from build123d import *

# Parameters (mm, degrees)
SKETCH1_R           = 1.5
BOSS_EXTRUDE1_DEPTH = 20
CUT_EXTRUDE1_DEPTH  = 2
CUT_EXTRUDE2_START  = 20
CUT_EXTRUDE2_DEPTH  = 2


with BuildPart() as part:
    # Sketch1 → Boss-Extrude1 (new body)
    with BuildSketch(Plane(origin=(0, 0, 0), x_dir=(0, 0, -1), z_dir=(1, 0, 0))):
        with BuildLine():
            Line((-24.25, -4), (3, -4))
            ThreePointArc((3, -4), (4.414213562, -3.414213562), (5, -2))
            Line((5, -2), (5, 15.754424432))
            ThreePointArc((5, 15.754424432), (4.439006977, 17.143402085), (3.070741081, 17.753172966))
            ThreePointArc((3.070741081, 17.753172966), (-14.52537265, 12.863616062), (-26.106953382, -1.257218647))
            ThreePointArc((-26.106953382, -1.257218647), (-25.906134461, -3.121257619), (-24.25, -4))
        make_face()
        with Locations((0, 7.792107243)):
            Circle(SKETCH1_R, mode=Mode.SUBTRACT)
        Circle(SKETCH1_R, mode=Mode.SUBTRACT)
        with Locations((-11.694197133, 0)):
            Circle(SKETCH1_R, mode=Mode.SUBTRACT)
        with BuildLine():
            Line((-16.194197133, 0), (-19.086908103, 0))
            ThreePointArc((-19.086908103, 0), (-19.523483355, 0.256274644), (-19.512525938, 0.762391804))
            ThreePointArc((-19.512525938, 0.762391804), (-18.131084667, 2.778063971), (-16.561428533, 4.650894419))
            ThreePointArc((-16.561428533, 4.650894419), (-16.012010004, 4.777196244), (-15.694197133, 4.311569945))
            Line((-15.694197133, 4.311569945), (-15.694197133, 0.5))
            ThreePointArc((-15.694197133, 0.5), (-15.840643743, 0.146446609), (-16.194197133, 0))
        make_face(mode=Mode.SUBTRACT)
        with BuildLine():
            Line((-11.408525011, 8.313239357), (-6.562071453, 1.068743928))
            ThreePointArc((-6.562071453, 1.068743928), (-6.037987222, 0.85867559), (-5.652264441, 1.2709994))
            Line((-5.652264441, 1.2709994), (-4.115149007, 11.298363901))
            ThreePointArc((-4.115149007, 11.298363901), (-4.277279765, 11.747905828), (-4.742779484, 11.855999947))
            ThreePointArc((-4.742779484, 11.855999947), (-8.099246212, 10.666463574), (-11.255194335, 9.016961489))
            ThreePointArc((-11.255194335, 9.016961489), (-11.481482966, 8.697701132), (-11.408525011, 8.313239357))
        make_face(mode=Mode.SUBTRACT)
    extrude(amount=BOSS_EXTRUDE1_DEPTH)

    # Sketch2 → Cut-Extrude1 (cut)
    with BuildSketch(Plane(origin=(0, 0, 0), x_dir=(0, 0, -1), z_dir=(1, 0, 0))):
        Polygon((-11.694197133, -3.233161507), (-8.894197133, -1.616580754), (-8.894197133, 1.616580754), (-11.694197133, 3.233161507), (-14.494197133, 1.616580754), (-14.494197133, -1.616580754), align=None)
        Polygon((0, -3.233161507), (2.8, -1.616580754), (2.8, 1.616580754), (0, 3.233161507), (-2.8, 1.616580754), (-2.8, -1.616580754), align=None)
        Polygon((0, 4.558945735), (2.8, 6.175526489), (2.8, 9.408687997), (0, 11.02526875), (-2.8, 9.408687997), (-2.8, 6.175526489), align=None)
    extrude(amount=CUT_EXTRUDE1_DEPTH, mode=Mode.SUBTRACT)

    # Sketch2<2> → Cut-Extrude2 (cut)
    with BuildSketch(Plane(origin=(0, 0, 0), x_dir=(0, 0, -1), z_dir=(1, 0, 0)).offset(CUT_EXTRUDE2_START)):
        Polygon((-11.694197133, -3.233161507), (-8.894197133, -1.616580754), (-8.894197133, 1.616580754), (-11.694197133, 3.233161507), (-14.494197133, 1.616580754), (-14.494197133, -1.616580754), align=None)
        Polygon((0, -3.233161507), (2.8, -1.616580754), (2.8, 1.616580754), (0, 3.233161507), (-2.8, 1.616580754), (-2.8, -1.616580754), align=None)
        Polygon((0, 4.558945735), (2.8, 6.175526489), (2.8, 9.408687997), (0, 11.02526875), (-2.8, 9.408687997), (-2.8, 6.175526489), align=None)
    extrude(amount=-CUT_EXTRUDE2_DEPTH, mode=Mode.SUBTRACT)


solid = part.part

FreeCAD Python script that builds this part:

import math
import FreeCAD as App
import Part
import Sketcher
from FreeCAD import Vector
Q = App.Units.Quantity

doc = App.newDocument("Part")
body = doc.addObject("PartDesign::Body", "Body")

# Sketch on YZ plane
sketch1 = body.newObject("Sketcher::SketchObject", "Sketch")
sketch1.AttachmentSupport = (doc.getObject("YZ_Plane"), [""])
sketch1.MapMode = "FlatFace"
sketch1.addGeometry([
    Part.LineSegment(Vector(-4, 24.2, 0), Vector(-4, -3, 0)),  # 0
    Part.ArcOfCircle(Part.Circle(Vector(-2, -3, 0), Vector(0, 0, 1), 2), math.radians(-180), math.radians(-90)),  # 1
    Part.LineSegment(Vector(-2, -5, 0), Vector(15.8, -5, 0)),  # 2
    Part.ArcOfCircle(Part.Circle(Vector(15.8, -3, 0), Vector(0, 0, 1), 2), math.radians(-90), math.radians(-2)),  # 3
    Part.ArcOfCircle(Part.Circle(Vector(-12.5, -2, 0), Vector(0, 0, 1), 30.3), math.radians(-2), math.radians(68)),  # 4
    Part.ArcOfCircle(Part.Circle(Vector(-2, 24.2, 0), Vector(0, 0, 1), 2), math.radians(68), math.radians(180)),  # 5
    Part.Circle(Vector(0, 11.7, 0), Vector(0, 0, 1), 1.5),  # 6
    Part.ArcOfCircle(Part.Circle(Vector(0.5, 16.2, 0), Vector(0, 0, 1), 0.5), math.radians(180), math.radians(270)),  # 7
    Part.LineSegment(Vector(0, 16.2, 0), Vector(0, 19.1, 0)),  # 8
    Part.ArcOfCircle(Part.Circle(Vector(0.5, 19.1, 0), Vector(0, 0, 1), 0.5), math.radians(58), math.radians(180)),  # 9
    Part.ArcOfCircle(Part.Circle(Vector(-12.5, -2, 0), Vector(0, 0, 1), 25.3), math.radians(47.26), math.radians(58.35)),  # 10
    Part.ArcOfCircle(Part.Circle(Vector(4.3, 16.2, 0), Vector(0, 0, 1), 0.5), math.radians(-90), math.radians(47)),  # 11
    Part.LineSegment(Vector(4.3, 15.7, 0), Vector(0.5, 15.7, 0)),  # 12
    Part.Circle(Vector(0, 0, 0), Vector(0, 0, 1), 1.5),  # 13
    Part.LineSegment(Vector(1.1, 6.6, 0), Vector(8.3, 11.4, 0)),  # 14
    Part.ArcOfCircle(Part.Circle(Vector(8.6, 11, 0), Vector(0, 0, 1), 0.5), math.radians(32), math.radians(124)),  # 15
    Part.ArcOfCircle(Part.Circle(Vector(-12.5, -2, 0), Vector(0, 0, 1), 25.3), math.radians(15.47), math.radians(31.63)),  # 16
    Part.ArcOfCircle(Part.Circle(Vector(11.4, 4.6, 0), Vector(0, 0, 1), 0.5), math.radians(-99), math.radians(15)),  # 17
    Part.LineSegment(Vector(11.3, 4.1, 0), Vector(1.3, 5.7, 0)),  # 18
    Part.ArcOfCircle(Part.Circle(Vector(1.3, 6.1, 0), Vector(0, 0, 1), 0.5), math.radians(124), math.radians(261)),  # 19
    Part.Circle(Vector(7.8, 0, 0), Vector(0, 0, 1), 1.5),  # 20
], False)
sketch1.addConstraint([
    Sketcher.Constraint("Tangent", 0, 2, 1, 1),
    Sketcher.Constraint("Tangent", 1, 2, 2, 1),
    Sketcher.Constraint("Tangent", 2, 2, 3, 1),
    Sketcher.Constraint("Tangent", 3, 2, 4, 1),
    Sketcher.Constraint("Tangent", 4, 2, 5, 1),
    Sketcher.Constraint("Tangent", 5, 2, 0, 1),
    Sketcher.Constraint("Tangent", 7, 1, 8, 1),
    Sketcher.Constraint("Tangent", 8, 2, 9, 2),
    Sketcher.Constraint("Tangent", 9, 1, 10, 2),
    Sketcher.Constraint("Tangent", 10, 1, 11, 2),
    Sketcher.Constraint("Tangent", 11, 1, 12, 1),
    Sketcher.Constraint("Tangent", 12, 2, 7, 2),
    Sketcher.Constraint("Tangent", 14, 2, 15, 2),
    Sketcher.Constraint("Tangent", 15, 1, 16, 2),
    Sketcher.Constraint("Tangent", 16, 1, 17, 2),
    Sketcher.Constraint("Tangent", 17, 1, 18, 1),
    Sketcher.Constraint("Tangent", 18, 2, 19, 2),
    Sketcher.Constraint("Tangent", 19, 1, 14, 1),
    Sketcher.Constraint("Vertical", 0),
    Sketcher.Constraint("Horizontal", 2),
    Sketcher.Constraint("Vertical", 8),
    Sketcher.Constraint("Horizontal", 12),
    Sketcher.Constraint("Coincident", 13, 3, -1, 1),
    Sketcher.Constraint("Coincident", 10, 3, 4, 3),
    Sketcher.Constraint("Coincident", 16, 3, 4, 3),
    Sketcher.Constraint("Equal", 1, 3),
    Sketcher.Constraint("Equal", 3, 5),
    Sketcher.Constraint("Equal", 7, 9),
    Sketcher.Constraint("Equal", 9, 11),
    Sketcher.Constraint("Equal", 6, 13),
    Sketcher.Constraint("Equal", 11, 15),
    Sketcher.Constraint("Equal", 10, 16),
    Sketcher.Constraint("Equal", 15, 17),
    Sketcher.Constraint("Equal", 17, 19),
    Sketcher.Constraint("Equal", 13, 20),
    Sketcher.Constraint("PointOnObject", 6, 3, -2),
    Sketcher.Constraint("PointOnObject", 20, 3, -1),
    Sketcher.Constraint("PointOnObject", 7, 1, -2),
    Sketcher.Constraint("Diameter", 6, 3.0),
    Sketcher.Constraint("Radius", 1, 2.0),
    Sketcher.Constraint("Radius", 7, 0.5),
    Sketcher.Constraint("DistanceX", 1, 3, -1, 1, 2.0),
    Sketcher.Constraint("DistanceY", 1, 3, -1, 1, 3.0),
    Sketcher.Constraint("DistanceY", 4, 3, -1, 1, 2.0),
    Sketcher.Constraint("DistanceX", 4, 3, 7, 3, 13.0),
    Sketcher.Constraint("DistanceY", 0, 2, 0, 1, 27.25),
    Sketcher.Constraint("DistanceY", 6, 3, 7, 3, 4.5),
    Sketcher.Constraint("DistanceX", -1, 1, 16, 1, 11.856),
    Sketcher.Constraint("DistanceX", -1, 1, 18, 2, 1.270999),
    Sketcher.Constraint("Radius", 10, 25.272115),
    Sketcher.Constraint("DistanceX", 12, 2, 12, 1, 3.81157),
    Sketcher.Constraint("DistanceX", -1, 1, 19, 3, 1.34676),
    Sketcher.Constraint("DistanceX", -1, 1, 14, 2, 8.313239),
    Sketcher.Constraint("DistanceX", -1, 1, 20, 3, 7.792107),
])
pad1 = body.newObject("PartDesign::Pad", "Pad")
pad1.Profile = sketch1
pad1.Length = 20

# Sketch on YZ plane
sketch2 = body.newObject("Sketcher::SketchObject", "Sketch001")
sketch2.AttachmentSupport = (doc.getObject("YZ_Plane"), [""])
sketch2.MapMode = "FlatFace"
sketch2.addGeometry([
    Part.LineSegment(Vector(-3.2, 11.7, 0), Vector(-1.6, 8.9, 0)),  # 0
    Part.LineSegment(Vector(-1.6, 8.9, 0), Vector(1.6, 8.9, 0)),  # 1
    Part.LineSegment(Vector(1.6, 8.9, 0), Vector(3.2, 11.7, 0)),  # 2
    Part.LineSegment(Vector(3.2, 11.7, 0), Vector(1.6, 14.5, 0)),  # 3
    Part.LineSegment(Vector(1.6, 14.5, 0), Vector(-1.6, 14.5, 0)),  # 4
    Part.LineSegment(Vector(-1.6, 14.5, 0), Vector(-3.2, 11.7, 0)),  # 5
    Part.LineSegment(Vector(-3.2, 0, 0), Vector(-1.6, -2.8, 0)),  # 6
    Part.LineSegment(Vector(-1.6, -2.8, 0), Vector(1.6, -2.8, 0)),  # 7
    Part.LineSegment(Vector(1.6, -2.8, 0), Vector(3.2, 0, 0)),  # 8
    Part.LineSegment(Vector(3.2, 0, 0), Vector(1.6, 2.8, 0)),  # 9
    Part.LineSegment(Vector(1.6, 2.8, 0), Vector(-1.6, 2.8, 0)),  # 10
    Part.LineSegment(Vector(-1.6, 2.8, 0), Vector(-3.2, 0, 0)),  # 11
    Part.LineSegment(Vector(4.6, 0, 0), Vector(6.2, -2.8, 0)),  # 12
    Part.LineSegment(Vector(6.2, -2.8, 0), Vector(9.4, -2.8, 0)),  # 13
    Part.LineSegment(Vector(9.4, -2.8, 0), Vector(11, 0, 0)),  # 14
    Part.LineSegment(Vector(11, 0, 0), Vector(9.4, 2.8, 0)),  # 15
    Part.LineSegment(Vector(9.4, 2.8, 0), Vector(6.2, 2.8, 0)),  # 16
    Part.LineSegment(Vector(6.2, 2.8, 0), Vector(4.6, 0, 0)),  # 17
], False)
sketch2.addConstraint([
    Sketcher.Constraint("Coincident", 0, 2, 1, 1),
    Sketcher.Constraint("Coincident", 1, 2, 2, 1),
    Sketcher.Constraint("Coincident", 2, 2, 3, 1),
    Sketcher.Constraint("Coincident", 3, 2, 4, 1),
    Sketcher.Constraint("Coincident", 4, 2, 5, 1),
    Sketcher.Constraint("Coincident", 5, 2, 0, 1),
    Sketcher.Constraint("Coincident", 6, 2, 7, 1),
    Sketcher.Constraint("Coincident", 7, 2, 8, 1),
    Sketcher.Constraint("Coincident", 8, 2, 9, 1),
    Sketcher.Constraint("Coincident", 9, 2, 10, 1),
    Sketcher.Constraint("Coincident", 10, 2, 11, 1),
    Sketcher.Constraint("Coincident", 11, 2, 6, 1),
    Sketcher.Constraint("Coincident", 12, 2, 13, 1),
    Sketcher.Constraint("Coincident", 13, 2, 14, 1),
    Sketcher.Constraint("Coincident", 14, 2, 15, 1),
    Sketcher.Constraint("Coincident", 15, 2, 16, 1),
    Sketcher.Constraint("Coincident", 16, 2, 17, 1),
    Sketcher.Constraint("Coincident", 17, 2, 12, 1),
    Sketcher.Constraint("Horizontal", 1),
    Sketcher.Constraint("Horizontal", 4),
    Sketcher.Constraint("Horizontal", 7),
    Sketcher.Constraint("Horizontal", 10),
    Sketcher.Constraint("Horizontal", 13),
    Sketcher.Constraint("Horizontal", 16),
    Sketcher.Constraint("Symmetric", 6, 2, 9, 2, -1, 1),
    Sketcher.Constraint("Symmetric", 8, 2, 11, 2, -1, 1),
    Sketcher.Constraint("Symmetric", 2, 2, 5, 2, -2),
    Sketcher.Constraint("Symmetric", 13, 2, 15, 2, -1),
    Sketcher.Constraint("PointOnObject", 8, 2, -1),
    Sketcher.Constraint("PointOnObject", 14, 2, -1),
    Sketcher.Constraint("PointOnObject", 17, 2, -1),
    Sketcher.Constraint("Parallel", 0, 3),
    Sketcher.Constraint("Parallel", 2, 5),
    Sketcher.Constraint("Parallel", 3, 6),
    Sketcher.Constraint("Parallel", 5, 8),
    Sketcher.Constraint("Parallel", 8, 11),
    Sketcher.Constraint("Parallel", 9, 12),
    Sketcher.Constraint("Parallel", 11, 14),
    Sketcher.Constraint("Parallel", 12, 15),
    Sketcher.Constraint("Parallel", 14, 17),
    Sketcher.Constraint("Horizontal", 7, 2, 12, 2),
    Sketcher.Constraint("Vertical", 1, 2, 3, 2),
    Sketcher.Constraint("Vertical", 4, 2, 6, 2),
    Sketcher.Constraint("Vertical", 2, 2, 8, 2),
    Sketcher.Constraint("Equal", 10, 13),
    Sketcher.Constraint("Angle", 0, Q("-60 deg")),
    Sketcher.Constraint("DistanceY", 6, 2, -1, 1, 2.8),
    Sketcher.Constraint("DistanceX", 1, 1, 1, 2, 3.233162),
    Sketcher.Constraint("DistanceX", -1, 1, 14, 2, 11.025269),
    Sketcher.Constraint("DistanceY", -1, 1, 0, 2, 8.894197),
])
pocket1 = body.newObject("PartDesign::Pocket", "Pocket")
pocket1.Profile = sketch2
pocket1.Length = 2
pocket1.Reversed = True

# Sketch on YZ plane
sketch3 = body.newObject("Sketcher::SketchObject", "Sketch002")
sketch3.AttachmentSupport = (doc.getObject("YZ_Plane"), [""])
sketch3.MapMode = "FlatFace"
sketch3.AttachmentOffset = App.Placement(Vector(0, 0, 20), App.Rotation())
sketch3.addGeometry([
    Part.LineSegment(Vector(-3.2, 11.7, 0), Vector(-1.6, 8.9, 0)),  # 0
    Part.LineSegment(Vector(-1.6, 8.9, 0), Vector(1.6, 8.9, 0)),  # 1
    Part.LineSegment(Vector(1.6, 8.9, 0), Vector(3.2, 11.7, 0)),  # 2
    Part.LineSegment(Vector(3.2, 11.7, 0), Vector(1.6, 14.5, 0)),  # 3
    Part.LineSegment(Vector(1.6, 14.5, 0), Vector(-1.6, 14.5, 0)),  # 4
    Part.LineSegment(Vector(-1.6, 14.5, 0), Vector(-3.2, 11.7, 0)),  # 5
    Part.LineSegment(Vector(-3.2, 0, 0), Vector(-1.6, -2.8, 0)),  # 6
    Part.LineSegment(Vector(-1.6, -2.8, 0), Vector(1.6, -2.8, 0)),  # 7
    Part.LineSegment(Vector(1.6, -2.8, 0), Vector(3.2, 0, 0)),  # 8
    Part.LineSegment(Vector(3.2, 0, 0), Vector(1.6, 2.8, 0)),  # 9
    Part.LineSegment(Vector(1.6, 2.8, 0), Vector(-1.6, 2.8, 0)),  # 10
    Part.LineSegment(Vector(-1.6, 2.8, 0), Vector(-3.2, 0, 0)),  # 11
    Part.LineSegment(Vector(4.6, 0, 0), Vector(6.2, -2.8, 0)),  # 12
    Part.LineSegment(Vector(6.2, -2.8, 0), Vector(9.4, -2.8, 0)),  # 13
    Part.LineSegment(Vector(9.4, -2.8, 0), Vector(11, 0, 0)),  # 14
    Part.LineSegment(Vector(11, 0, 0), Vector(9.4, 2.8, 0)),  # 15
    Part.LineSegment(Vector(9.4, 2.8, 0), Vector(6.2, 2.8, 0)),  # 16
    Part.LineSegment(Vector(6.2, 2.8, 0), Vector(4.6, 0, 0)),  # 17
], False)
sketch3.addConstraint([
    Sketcher.Constraint("Coincident", 0, 2, 1, 1),
    Sketcher.Constraint("Coincident", 1, 2, 2, 1),
    Sketcher.Constraint("Coincident", 2, 2, 3, 1),
    Sketcher.Constraint("Coincident", 3, 2, 4, 1),
    Sketcher.Constraint("Coincident", 4, 2, 5, 1),
    Sketcher.Constraint("Coincident", 5, 2, 0, 1),
    Sketcher.Constraint("Coincident", 6, 2, 7, 1),
    Sketcher.Constraint("Coincident", 7, 2, 8, 1),
    Sketcher.Constraint("Coincident", 8, 2, 9, 1),
    Sketcher.Constraint("Coincident", 9, 2, 10, 1),
    Sketcher.Constraint("Coincident", 10, 2, 11, 1),
    Sketcher.Constraint("Coincident", 11, 2, 6, 1),
    Sketcher.Constraint("Coincident", 12, 2, 13, 1),
    Sketcher.Constraint("Coincident", 13, 2, 14, 1),
    Sketcher.Constraint("Coincident", 14, 2, 15, 1),
    Sketcher.Constraint("Coincident", 15, 2, 16, 1),
    Sketcher.Constraint("Coincident", 16, 2, 17, 1),
    Sketcher.Constraint("Coincident", 17, 2, 12, 1),
    Sketcher.Constraint("Horizontal", 1),
    Sketcher.Constraint("Horizontal", 4),
    Sketcher.Constraint("Horizontal", 7),
    Sketcher.Constraint("Horizontal", 10),
    Sketcher.Constraint("Horizontal", 13),
    Sketcher.Constraint("Horizontal", 16),
    Sketcher.Constraint("Symmetric", 6, 2, 9, 2, -1, 1),
    Sketcher.Constraint("Symmetric", 8, 2, 11, 2, -1, 1),
    Sketcher.Constraint("Symmetric", 2, 2, 5, 2, -2),
    Sketcher.Constraint("Symmetric", 13, 2, 15, 2, -1),
    Sketcher.Constraint("PointOnObject", 8, 2, -1),
    Sketcher.Constraint("PointOnObject", 14, 2, -1),
    Sketcher.Constraint("PointOnObject", 17, 2, -1),
    Sketcher.Constraint("Parallel", 0, 3),
    Sketcher.Constraint("Parallel", 2, 5),
    Sketcher.Constraint("Parallel", 3, 6),
    Sketcher.Constraint("Parallel", 5, 8),
    Sketcher.Constraint("Parallel", 8, 11),
    Sketcher.Constraint("Parallel", 9, 12),
    Sketcher.Constraint("Parallel", 11, 14),
    Sketcher.Constraint("Parallel", 12, 15),
    Sketcher.Constraint("Parallel", 14, 17),
    Sketcher.Constraint("Horizontal", 7, 2, 12, 2),
    Sketcher.Constraint("Vertical", 1, 2, 3, 2),
    Sketcher.Constraint("Vertical", 4, 2, 6, 2),
    Sketcher.Constraint("Vertical", 2, 2, 8, 2),
    Sketcher.Constraint("Equal", 10, 13),
    Sketcher.Constraint("Angle", 0, Q("-60 deg")),
    Sketcher.Constraint("DistanceY", 6, 2, -1, 1, 2.8),
    Sketcher.Constraint("DistanceX", 1, 1, 1, 2, 3.233162),
    Sketcher.Constraint("DistanceX", -1, 1, 14, 2, 11.025269),
    Sketcher.Constraint("DistanceY", -1, 1, 0, 2, 8.894197),
])
pocket2 = body.newObject("PartDesign::Pocket", "Pocket001")
pocket2.Profile = sketch3
pocket2.Length = 2

doc.recompute()
